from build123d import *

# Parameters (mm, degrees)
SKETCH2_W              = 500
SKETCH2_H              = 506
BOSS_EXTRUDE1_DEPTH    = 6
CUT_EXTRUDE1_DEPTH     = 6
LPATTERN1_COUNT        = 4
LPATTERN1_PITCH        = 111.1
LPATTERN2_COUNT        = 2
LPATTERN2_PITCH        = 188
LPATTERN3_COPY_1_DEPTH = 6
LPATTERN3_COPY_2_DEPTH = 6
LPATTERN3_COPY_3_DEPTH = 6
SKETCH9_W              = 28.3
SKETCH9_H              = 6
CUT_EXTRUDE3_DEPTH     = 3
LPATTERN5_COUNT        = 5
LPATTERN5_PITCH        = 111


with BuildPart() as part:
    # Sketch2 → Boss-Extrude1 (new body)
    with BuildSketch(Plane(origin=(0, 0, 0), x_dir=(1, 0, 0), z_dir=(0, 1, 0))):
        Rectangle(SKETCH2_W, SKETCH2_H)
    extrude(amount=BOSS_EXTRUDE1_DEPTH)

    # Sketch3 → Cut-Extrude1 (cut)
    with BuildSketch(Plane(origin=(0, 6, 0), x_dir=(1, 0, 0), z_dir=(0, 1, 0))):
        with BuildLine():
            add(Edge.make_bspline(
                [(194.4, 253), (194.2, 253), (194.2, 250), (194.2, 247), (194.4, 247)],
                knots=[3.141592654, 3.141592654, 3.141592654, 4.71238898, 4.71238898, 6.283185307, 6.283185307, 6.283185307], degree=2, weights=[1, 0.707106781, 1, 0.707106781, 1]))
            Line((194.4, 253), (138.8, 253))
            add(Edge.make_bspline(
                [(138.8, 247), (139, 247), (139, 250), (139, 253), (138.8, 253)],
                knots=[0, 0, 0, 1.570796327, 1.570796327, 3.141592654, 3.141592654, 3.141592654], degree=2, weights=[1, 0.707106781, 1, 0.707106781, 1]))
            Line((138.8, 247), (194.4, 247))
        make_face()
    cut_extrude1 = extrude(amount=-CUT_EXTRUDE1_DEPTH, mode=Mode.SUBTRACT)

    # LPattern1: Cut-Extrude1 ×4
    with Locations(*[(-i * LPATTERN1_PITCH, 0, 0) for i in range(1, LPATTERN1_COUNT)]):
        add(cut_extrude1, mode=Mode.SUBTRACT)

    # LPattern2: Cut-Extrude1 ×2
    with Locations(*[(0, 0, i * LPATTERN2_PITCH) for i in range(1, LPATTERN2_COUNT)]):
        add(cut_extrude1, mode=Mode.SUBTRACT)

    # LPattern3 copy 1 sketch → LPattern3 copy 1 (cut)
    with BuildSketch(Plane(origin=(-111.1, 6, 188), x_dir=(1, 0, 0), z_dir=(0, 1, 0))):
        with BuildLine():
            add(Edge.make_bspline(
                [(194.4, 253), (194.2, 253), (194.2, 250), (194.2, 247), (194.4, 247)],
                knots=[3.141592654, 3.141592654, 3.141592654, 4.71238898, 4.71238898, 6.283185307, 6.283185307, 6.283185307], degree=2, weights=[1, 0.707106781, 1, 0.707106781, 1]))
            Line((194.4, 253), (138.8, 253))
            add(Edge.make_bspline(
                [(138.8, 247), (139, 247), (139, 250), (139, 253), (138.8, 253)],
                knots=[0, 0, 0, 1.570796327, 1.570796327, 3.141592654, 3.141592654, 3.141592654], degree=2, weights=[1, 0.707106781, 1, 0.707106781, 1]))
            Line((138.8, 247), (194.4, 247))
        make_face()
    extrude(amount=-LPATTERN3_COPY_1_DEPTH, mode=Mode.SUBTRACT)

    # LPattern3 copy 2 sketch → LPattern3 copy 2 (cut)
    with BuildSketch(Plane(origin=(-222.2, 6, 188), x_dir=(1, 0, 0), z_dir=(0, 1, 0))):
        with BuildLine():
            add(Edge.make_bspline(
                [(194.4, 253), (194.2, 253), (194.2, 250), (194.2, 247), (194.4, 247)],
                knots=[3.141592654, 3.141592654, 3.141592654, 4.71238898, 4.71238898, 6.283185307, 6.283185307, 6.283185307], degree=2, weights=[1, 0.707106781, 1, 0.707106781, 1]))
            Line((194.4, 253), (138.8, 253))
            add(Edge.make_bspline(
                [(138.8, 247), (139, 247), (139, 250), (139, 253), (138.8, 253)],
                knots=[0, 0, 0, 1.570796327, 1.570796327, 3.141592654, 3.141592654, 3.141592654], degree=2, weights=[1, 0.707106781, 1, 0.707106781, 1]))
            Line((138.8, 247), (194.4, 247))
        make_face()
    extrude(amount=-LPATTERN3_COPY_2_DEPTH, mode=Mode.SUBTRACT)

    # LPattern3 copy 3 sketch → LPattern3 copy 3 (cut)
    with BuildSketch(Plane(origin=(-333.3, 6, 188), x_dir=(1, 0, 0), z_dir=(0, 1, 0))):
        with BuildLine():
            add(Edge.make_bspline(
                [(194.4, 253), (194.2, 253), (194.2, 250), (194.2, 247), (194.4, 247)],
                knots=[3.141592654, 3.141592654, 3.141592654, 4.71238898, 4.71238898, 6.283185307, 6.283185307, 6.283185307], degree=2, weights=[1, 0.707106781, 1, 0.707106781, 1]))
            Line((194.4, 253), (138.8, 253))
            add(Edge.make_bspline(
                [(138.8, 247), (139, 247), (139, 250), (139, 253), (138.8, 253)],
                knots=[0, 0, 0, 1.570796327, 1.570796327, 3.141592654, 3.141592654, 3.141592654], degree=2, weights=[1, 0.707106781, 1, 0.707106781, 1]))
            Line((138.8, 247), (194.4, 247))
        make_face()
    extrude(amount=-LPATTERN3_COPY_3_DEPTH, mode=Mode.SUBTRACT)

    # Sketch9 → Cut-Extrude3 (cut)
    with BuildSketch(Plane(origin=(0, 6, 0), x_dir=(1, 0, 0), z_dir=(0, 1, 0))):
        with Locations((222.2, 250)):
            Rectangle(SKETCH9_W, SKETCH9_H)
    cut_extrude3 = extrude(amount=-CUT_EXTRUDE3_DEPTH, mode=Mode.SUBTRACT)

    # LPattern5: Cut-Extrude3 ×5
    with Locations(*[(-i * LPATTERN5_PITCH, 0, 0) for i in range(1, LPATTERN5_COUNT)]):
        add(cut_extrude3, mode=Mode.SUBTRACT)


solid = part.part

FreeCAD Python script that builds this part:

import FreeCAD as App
import Part
import Sketcher

V = App.Vector
Q = App.Units.Quantity


def add_polygon(sketch, points):
    """Adds a closed chain of lines whose ends are joined by coincident constraints."""
    first, n = sketch.GeometryCount, len(points)
    for a, b in zip(points, points[1:] + points[:1]):
        sketch.addGeometry(Part.LineSegment(App.Vector(*a, 0), App.Vector(*b, 0)), False)
    for i in range(n):
        sketch.addConstraint(Sketcher.Constraint("Coincident", first + i, 2, first + (i + 1) % n, 1))

doc = App.newDocument("Part")
body = doc.addObject("PartDesign::Body", "Body")

sketch1 = body.newObject("Sketcher::SketchObject", "Sketch")
sketch1.AttachmentSupport = (doc.getObject("XZ_Plane"), [""])
sketch1.MapMode = "FlatFace"
add_polygon(sketch1, [(-250, -253), (-250, 253), (250, 253), (250, -253)])
sketch1.addConstraint([
    Sketcher.Constraint("Vertical", 0),
    Sketcher.Constraint("Horizontal", 1),
    Sketcher.Constraint("Vertical", 2),
    Sketcher.Constraint("Horizontal", 3),
    Sketcher.Constraint("Symmetric", 0, 2, 2, 2, -1, 1),
    Sketcher.Constraint("DistanceX", 1, 1, 1, 2, Q("500 mm")),
    Sketcher.Constraint("DistanceY", 0, 1, 0, 2, Q("506 mm")),
])
pad1 = body.newObject("PartDesign::Pad", "Pad")
pad1.Profile = sketch1
pad1.Length = 6
pad1.Reversed = True

sketch2 = body.newObject("Sketcher::SketchObject", "Sketch001")
sketch2.AttachmentSupport = (doc.getObject("XZ_Plane"), [""])
sketch2.MapMode = "FlatFace"
sketch2.AttachmentOffset = App.Placement(V(0, 0, -6), App.Rotation())
sketch2.addGeometry([
    Part.BSplineCurve([V(194.4, -253, 0), V(194.2, -253, 0), V(194.2, -250, 0), V(194.2, -247, 0), V(194.4, -247, 0)], [3, 2, 3], [3.141592654, 4.71238898, 6.283185307], False, 2, [1, 0.707106781, 1, 0.707106781, 1], False),
    Part.LineSegment(V(194.4, -253, 0), V(138.8, -253, 0)),
    Part.BSplineCurve([V(138.8, -247, 0), V(139, -247, 0), V(139, -250, 0), V(139, -253, 0), V(138.8, -253, 0)], [3, 2, 3], [0, 1.570796327, 3.141592654], False, 2, [1, 0.707106781, 1, 0.707106781, 1], False),
    Part.LineSegment(V(138.8, -247, 0), V(194.4, -247, 0)),
], False)
sketch2.addConstraint([
    Sketcher.Constraint("Block", 0),
    Sketcher.Constraint("Block", 2),
    Sketcher.Constraint("Coincident", 0, 1, 1, 1),
    Sketcher.Constraint("Coincident", 1, 2, 2, 2),
    Sketcher.Constraint("Coincident", 2, 1, 3, 1),
    Sketcher.Constraint("Coincident", 3, 2, 0, 2),
])
pocket1 = body.newObject("PartDesign::Pocket", "Pocket")
pocket1.Profile = sketch2
pocket1.Length = 6
pocket1.Reversed = True
doc.recompute()

linearpattern = body.newObject("PartDesign::LinearPattern", "LinearPattern")
linearpattern.Originals = [pocket1]
linearpattern.Direction = (doc.getObject("X_Axis"), [""])
linearpattern.Mode = "offset"
linearpattern.Offset = 111.1
linearpattern.Occurrences = 4
linearpattern.Reversed = True
body.Tip = linearpattern
doc.recompute()

linearpattern2 = body.newObject("PartDesign::LinearPattern", "LinearPattern001")
linearpattern2.Originals = [pocket1]
linearpattern2.Direction = (doc.getObject("Z_Axis"), [""])
linearpattern2.Mode = "offset"
linearpattern2.Offset = 188
linearpattern2.Occurrences = 2
body.Tip = linearpattern2

sketch3 = body.newObject("Sketcher::SketchObject", "Sketch002")
sketch3.AttachmentSupport = (doc.getObject("XZ_Plane"), [""])
sketch3.MapMode = "FlatFace"
sketch3.AttachmentOffset = App.Placement(V(0, 0, -6), App.Rotation())
sketch3.addGeometry([
    Part.BSplineCurve([V(83.3, -65, 0), V(83.1, -65, 0), V(83.1, -62, 0), V(83.1, -59, 0), V(83.3, -59, 0)], [3, 2, 3], [3.141592654, 4.71238898, 6.283185307], False, 2, [1, 0.707106781, 1, 0.707106781, 1], False),
    Part.LineSegment(V(83.3, -65, 0), V(27.7, -65, 0)),
    Part.BSplineCurve([V(27.7, -59, 0), V(27.9, -59, 0), V(27.9, -62, 0), V(27.9, -65, 0), V(27.7, -65, 0)], [3, 2, 3], [0, 1.570796327, 3.141592654], False, 2, [1, 0.707106781, 1, 0.707106781, 1], False),
    Part.LineSegment(V(27.7, -59, 0), V(83.3, -59, 0)),
], False)
sketch3.addConstraint([
    Sketcher.Constraint("Block", 0),
    Sketcher.Constraint("Block", 2),
    Sketcher.Constraint("Coincident", 0, 1, 1, 1),
    Sketcher.Constraint("Coincident", 1, 2, 2, 2),
    Sketcher.Constraint("Coincident", 2, 1, 3, 1),
    Sketcher.Constraint("Coincident", 3, 2, 0, 2),
])
pocket2 = body.newObject("PartDesign::Pocket", "Pocket001")
pocket2.Profile = sketch3
pocket2.Length = 6
pocket2.Reversed = True

sketch4 = body.newObject("Sketcher::SketchObject", "Sketch003")
sketch4.AttachmentSupport = (doc.getObject("XZ_Plane"), [""])
sketch4.MapMode = "FlatFace"
sketch4.AttachmentOffset = App.Placement(V(0, 0, -6), App.Rotation())
sketch4.addGeometry([
    Part.BSplineCurve([V(-27.8, -65, 0), V(-28, -65, 0), V(-28, -62, 0), V(-28, -59, 0), V(-27.8, -59, 0)], [3, 2, 3], [3.141592654, 4.71238898, 6.283185307], False, 2, [1, 0.707106781, 1, 0.707106781, 1], False),
    Part.LineSegment(V(-27.8, -65, 0), V(-83.4, -65, 0)),
    Part.BSplineCurve([V(-83.4, -59, 0), V(-83.2, -59, 0), V(-83.2, -62, 0), V(-83.2, -65, 0), V(-83.4, -65, 0)], [3, 2, 3], [0, 1.570796327, 3.141592654], False, 2, [1, 0.707106781, 1, 0.707106781, 1], False),
    Part.LineSegment(V(-83.4, -59, 0), V(-27.8, -59, 0)),
], False)
sketch4.addConstraint([
    Sketcher.Constraint("Block", 0),
    Sketcher.Constraint("Block", 2),
    Sketcher.Constraint("Coincident", 0, 1, 1, 1),
    Sketcher.Constraint("Coincident", 1, 2, 2, 2),
    Sketcher.Constraint("Coincident", 2, 1, 3, 1),
    Sketcher.Constraint("Coincident", 3, 2, 0, 2),
])
pocket3 = body.newObject("PartDesign::Pocket", "Pocket002")
pocket3.Profile = sketch4
pocket3.Length = 6
pocket3.Reversed = True

sketch5 = body.newObject("Sketcher::SketchObject", "Sketch004")
sketch5.AttachmentSupport = (doc.getObject("XZ_Plane"), [""])
sketch5.MapMode = "FlatFace"
sketch5.AttachmentOffset = App.Placement(V(0, 0, -6), App.Rotation())
sketch5.addGeometry([
    Part.BSplineCurve([V(-138.9, -65, 0), V(-139.1, -65, 0), V(-139.1, -62, 0), V(-139.1, -59, 0), V(-138.9, -59, 0)], [3, 2, 3], [3.141592654, 4.71238898, 6.283185307], False, 2, [1, 0.707106781, 1, 0.707106781, 1], False),
    Part.LineSegment(V(-138.9, -65, 0), V(-194.5, -65, 0)),
    Part.BSplineCurve([V(-194.5, -59, 0), V(-194.3, -59, 0), V(-194.3, -62, 0), V(-194.3, -65, 0), V(-194.5, -65, 0)], [3, 2, 3], [0, 1.570796327, 3.141592654], False, 2, [1, 0.707106781, 1, 0.707106781, 1], False),
    Part.LineSegment(V(-194.5, -59, 0), V(-138.9, -59, 0)),
], False)
sketch5.addConstraint([
    Sketcher.Constraint("Block", 0),
    Sketcher.Constraint("Block", 2),
    Sketcher.Constraint("Coincident", 0, 1, 1, 1),
    Sketcher.Constraint("Coincident", 1, 2, 2, 2),
    Sketcher.Constraint("Coincident", 2, 1, 3, 1),
    Sketcher.Constraint("Coincident", 3, 2, 0, 2),
])
pocket4 = body.newObject("PartDesign::Pocket", "Pocket003")
pocket4.Profile = sketch5
pocket4.Length = 6
pocket4.Reversed = True

sketch6 = body.newObject("Sketcher::SketchObject", "Sketch005")
sketch6.AttachmentSupport = (doc.getObject("XZ_Plane"), [""])
sketch6.MapMode = "FlatFace"
sketch6.AttachmentOffset = App.Placement(V(0, 0, -6), App.Rotation())
add_polygon(sketch6, [(208.05, -253), (208.05, -247), (236.35, -247), (236.35, -253)])
sketch6.addConstraint([
    Sketcher.Constraint("Vertical", 0),
    Sketcher.Constraint("Horizontal", 1),
    Sketcher.Constraint("Vertical", 2),
    Sketcher.Constraint("Horizontal", 3),
    Sketcher.Constraint("DistanceY", 0, 1, 0, 2, Q("6 mm")),
    Sketcher.Constraint("DistanceX", 1, 1, 1, 2, Q("28.3 mm")),
    Sketcher.Constraint("DistanceY", 0, 2, -1, 1, Q("247 mm")),
    Sketcher.Constraint("DistanceX", -1, 1, 0, 2, Q("208.05 mm")),
])
pocket5 = body.newObject("PartDesign::Pocket", "Pocket004")
pocket5.Profile = sketch6
pocket5.Length = 3
pocket5.Reversed = True
doc.recompute()

linearpattern3 = body.newObject("PartDesign::LinearPattern", "LinearPattern002")
linearpattern3.Originals = [pocket5]
linearpattern3.Direction = (doc.getObject("X_Axis"), [""])
linearpattern3.Mode = "offset"
linearpattern3.Offset = 111
linearpattern3.Occurrences = 5
linearpattern3.Reversed = True
body.Tip = linearpattern3

doc.recompute()
